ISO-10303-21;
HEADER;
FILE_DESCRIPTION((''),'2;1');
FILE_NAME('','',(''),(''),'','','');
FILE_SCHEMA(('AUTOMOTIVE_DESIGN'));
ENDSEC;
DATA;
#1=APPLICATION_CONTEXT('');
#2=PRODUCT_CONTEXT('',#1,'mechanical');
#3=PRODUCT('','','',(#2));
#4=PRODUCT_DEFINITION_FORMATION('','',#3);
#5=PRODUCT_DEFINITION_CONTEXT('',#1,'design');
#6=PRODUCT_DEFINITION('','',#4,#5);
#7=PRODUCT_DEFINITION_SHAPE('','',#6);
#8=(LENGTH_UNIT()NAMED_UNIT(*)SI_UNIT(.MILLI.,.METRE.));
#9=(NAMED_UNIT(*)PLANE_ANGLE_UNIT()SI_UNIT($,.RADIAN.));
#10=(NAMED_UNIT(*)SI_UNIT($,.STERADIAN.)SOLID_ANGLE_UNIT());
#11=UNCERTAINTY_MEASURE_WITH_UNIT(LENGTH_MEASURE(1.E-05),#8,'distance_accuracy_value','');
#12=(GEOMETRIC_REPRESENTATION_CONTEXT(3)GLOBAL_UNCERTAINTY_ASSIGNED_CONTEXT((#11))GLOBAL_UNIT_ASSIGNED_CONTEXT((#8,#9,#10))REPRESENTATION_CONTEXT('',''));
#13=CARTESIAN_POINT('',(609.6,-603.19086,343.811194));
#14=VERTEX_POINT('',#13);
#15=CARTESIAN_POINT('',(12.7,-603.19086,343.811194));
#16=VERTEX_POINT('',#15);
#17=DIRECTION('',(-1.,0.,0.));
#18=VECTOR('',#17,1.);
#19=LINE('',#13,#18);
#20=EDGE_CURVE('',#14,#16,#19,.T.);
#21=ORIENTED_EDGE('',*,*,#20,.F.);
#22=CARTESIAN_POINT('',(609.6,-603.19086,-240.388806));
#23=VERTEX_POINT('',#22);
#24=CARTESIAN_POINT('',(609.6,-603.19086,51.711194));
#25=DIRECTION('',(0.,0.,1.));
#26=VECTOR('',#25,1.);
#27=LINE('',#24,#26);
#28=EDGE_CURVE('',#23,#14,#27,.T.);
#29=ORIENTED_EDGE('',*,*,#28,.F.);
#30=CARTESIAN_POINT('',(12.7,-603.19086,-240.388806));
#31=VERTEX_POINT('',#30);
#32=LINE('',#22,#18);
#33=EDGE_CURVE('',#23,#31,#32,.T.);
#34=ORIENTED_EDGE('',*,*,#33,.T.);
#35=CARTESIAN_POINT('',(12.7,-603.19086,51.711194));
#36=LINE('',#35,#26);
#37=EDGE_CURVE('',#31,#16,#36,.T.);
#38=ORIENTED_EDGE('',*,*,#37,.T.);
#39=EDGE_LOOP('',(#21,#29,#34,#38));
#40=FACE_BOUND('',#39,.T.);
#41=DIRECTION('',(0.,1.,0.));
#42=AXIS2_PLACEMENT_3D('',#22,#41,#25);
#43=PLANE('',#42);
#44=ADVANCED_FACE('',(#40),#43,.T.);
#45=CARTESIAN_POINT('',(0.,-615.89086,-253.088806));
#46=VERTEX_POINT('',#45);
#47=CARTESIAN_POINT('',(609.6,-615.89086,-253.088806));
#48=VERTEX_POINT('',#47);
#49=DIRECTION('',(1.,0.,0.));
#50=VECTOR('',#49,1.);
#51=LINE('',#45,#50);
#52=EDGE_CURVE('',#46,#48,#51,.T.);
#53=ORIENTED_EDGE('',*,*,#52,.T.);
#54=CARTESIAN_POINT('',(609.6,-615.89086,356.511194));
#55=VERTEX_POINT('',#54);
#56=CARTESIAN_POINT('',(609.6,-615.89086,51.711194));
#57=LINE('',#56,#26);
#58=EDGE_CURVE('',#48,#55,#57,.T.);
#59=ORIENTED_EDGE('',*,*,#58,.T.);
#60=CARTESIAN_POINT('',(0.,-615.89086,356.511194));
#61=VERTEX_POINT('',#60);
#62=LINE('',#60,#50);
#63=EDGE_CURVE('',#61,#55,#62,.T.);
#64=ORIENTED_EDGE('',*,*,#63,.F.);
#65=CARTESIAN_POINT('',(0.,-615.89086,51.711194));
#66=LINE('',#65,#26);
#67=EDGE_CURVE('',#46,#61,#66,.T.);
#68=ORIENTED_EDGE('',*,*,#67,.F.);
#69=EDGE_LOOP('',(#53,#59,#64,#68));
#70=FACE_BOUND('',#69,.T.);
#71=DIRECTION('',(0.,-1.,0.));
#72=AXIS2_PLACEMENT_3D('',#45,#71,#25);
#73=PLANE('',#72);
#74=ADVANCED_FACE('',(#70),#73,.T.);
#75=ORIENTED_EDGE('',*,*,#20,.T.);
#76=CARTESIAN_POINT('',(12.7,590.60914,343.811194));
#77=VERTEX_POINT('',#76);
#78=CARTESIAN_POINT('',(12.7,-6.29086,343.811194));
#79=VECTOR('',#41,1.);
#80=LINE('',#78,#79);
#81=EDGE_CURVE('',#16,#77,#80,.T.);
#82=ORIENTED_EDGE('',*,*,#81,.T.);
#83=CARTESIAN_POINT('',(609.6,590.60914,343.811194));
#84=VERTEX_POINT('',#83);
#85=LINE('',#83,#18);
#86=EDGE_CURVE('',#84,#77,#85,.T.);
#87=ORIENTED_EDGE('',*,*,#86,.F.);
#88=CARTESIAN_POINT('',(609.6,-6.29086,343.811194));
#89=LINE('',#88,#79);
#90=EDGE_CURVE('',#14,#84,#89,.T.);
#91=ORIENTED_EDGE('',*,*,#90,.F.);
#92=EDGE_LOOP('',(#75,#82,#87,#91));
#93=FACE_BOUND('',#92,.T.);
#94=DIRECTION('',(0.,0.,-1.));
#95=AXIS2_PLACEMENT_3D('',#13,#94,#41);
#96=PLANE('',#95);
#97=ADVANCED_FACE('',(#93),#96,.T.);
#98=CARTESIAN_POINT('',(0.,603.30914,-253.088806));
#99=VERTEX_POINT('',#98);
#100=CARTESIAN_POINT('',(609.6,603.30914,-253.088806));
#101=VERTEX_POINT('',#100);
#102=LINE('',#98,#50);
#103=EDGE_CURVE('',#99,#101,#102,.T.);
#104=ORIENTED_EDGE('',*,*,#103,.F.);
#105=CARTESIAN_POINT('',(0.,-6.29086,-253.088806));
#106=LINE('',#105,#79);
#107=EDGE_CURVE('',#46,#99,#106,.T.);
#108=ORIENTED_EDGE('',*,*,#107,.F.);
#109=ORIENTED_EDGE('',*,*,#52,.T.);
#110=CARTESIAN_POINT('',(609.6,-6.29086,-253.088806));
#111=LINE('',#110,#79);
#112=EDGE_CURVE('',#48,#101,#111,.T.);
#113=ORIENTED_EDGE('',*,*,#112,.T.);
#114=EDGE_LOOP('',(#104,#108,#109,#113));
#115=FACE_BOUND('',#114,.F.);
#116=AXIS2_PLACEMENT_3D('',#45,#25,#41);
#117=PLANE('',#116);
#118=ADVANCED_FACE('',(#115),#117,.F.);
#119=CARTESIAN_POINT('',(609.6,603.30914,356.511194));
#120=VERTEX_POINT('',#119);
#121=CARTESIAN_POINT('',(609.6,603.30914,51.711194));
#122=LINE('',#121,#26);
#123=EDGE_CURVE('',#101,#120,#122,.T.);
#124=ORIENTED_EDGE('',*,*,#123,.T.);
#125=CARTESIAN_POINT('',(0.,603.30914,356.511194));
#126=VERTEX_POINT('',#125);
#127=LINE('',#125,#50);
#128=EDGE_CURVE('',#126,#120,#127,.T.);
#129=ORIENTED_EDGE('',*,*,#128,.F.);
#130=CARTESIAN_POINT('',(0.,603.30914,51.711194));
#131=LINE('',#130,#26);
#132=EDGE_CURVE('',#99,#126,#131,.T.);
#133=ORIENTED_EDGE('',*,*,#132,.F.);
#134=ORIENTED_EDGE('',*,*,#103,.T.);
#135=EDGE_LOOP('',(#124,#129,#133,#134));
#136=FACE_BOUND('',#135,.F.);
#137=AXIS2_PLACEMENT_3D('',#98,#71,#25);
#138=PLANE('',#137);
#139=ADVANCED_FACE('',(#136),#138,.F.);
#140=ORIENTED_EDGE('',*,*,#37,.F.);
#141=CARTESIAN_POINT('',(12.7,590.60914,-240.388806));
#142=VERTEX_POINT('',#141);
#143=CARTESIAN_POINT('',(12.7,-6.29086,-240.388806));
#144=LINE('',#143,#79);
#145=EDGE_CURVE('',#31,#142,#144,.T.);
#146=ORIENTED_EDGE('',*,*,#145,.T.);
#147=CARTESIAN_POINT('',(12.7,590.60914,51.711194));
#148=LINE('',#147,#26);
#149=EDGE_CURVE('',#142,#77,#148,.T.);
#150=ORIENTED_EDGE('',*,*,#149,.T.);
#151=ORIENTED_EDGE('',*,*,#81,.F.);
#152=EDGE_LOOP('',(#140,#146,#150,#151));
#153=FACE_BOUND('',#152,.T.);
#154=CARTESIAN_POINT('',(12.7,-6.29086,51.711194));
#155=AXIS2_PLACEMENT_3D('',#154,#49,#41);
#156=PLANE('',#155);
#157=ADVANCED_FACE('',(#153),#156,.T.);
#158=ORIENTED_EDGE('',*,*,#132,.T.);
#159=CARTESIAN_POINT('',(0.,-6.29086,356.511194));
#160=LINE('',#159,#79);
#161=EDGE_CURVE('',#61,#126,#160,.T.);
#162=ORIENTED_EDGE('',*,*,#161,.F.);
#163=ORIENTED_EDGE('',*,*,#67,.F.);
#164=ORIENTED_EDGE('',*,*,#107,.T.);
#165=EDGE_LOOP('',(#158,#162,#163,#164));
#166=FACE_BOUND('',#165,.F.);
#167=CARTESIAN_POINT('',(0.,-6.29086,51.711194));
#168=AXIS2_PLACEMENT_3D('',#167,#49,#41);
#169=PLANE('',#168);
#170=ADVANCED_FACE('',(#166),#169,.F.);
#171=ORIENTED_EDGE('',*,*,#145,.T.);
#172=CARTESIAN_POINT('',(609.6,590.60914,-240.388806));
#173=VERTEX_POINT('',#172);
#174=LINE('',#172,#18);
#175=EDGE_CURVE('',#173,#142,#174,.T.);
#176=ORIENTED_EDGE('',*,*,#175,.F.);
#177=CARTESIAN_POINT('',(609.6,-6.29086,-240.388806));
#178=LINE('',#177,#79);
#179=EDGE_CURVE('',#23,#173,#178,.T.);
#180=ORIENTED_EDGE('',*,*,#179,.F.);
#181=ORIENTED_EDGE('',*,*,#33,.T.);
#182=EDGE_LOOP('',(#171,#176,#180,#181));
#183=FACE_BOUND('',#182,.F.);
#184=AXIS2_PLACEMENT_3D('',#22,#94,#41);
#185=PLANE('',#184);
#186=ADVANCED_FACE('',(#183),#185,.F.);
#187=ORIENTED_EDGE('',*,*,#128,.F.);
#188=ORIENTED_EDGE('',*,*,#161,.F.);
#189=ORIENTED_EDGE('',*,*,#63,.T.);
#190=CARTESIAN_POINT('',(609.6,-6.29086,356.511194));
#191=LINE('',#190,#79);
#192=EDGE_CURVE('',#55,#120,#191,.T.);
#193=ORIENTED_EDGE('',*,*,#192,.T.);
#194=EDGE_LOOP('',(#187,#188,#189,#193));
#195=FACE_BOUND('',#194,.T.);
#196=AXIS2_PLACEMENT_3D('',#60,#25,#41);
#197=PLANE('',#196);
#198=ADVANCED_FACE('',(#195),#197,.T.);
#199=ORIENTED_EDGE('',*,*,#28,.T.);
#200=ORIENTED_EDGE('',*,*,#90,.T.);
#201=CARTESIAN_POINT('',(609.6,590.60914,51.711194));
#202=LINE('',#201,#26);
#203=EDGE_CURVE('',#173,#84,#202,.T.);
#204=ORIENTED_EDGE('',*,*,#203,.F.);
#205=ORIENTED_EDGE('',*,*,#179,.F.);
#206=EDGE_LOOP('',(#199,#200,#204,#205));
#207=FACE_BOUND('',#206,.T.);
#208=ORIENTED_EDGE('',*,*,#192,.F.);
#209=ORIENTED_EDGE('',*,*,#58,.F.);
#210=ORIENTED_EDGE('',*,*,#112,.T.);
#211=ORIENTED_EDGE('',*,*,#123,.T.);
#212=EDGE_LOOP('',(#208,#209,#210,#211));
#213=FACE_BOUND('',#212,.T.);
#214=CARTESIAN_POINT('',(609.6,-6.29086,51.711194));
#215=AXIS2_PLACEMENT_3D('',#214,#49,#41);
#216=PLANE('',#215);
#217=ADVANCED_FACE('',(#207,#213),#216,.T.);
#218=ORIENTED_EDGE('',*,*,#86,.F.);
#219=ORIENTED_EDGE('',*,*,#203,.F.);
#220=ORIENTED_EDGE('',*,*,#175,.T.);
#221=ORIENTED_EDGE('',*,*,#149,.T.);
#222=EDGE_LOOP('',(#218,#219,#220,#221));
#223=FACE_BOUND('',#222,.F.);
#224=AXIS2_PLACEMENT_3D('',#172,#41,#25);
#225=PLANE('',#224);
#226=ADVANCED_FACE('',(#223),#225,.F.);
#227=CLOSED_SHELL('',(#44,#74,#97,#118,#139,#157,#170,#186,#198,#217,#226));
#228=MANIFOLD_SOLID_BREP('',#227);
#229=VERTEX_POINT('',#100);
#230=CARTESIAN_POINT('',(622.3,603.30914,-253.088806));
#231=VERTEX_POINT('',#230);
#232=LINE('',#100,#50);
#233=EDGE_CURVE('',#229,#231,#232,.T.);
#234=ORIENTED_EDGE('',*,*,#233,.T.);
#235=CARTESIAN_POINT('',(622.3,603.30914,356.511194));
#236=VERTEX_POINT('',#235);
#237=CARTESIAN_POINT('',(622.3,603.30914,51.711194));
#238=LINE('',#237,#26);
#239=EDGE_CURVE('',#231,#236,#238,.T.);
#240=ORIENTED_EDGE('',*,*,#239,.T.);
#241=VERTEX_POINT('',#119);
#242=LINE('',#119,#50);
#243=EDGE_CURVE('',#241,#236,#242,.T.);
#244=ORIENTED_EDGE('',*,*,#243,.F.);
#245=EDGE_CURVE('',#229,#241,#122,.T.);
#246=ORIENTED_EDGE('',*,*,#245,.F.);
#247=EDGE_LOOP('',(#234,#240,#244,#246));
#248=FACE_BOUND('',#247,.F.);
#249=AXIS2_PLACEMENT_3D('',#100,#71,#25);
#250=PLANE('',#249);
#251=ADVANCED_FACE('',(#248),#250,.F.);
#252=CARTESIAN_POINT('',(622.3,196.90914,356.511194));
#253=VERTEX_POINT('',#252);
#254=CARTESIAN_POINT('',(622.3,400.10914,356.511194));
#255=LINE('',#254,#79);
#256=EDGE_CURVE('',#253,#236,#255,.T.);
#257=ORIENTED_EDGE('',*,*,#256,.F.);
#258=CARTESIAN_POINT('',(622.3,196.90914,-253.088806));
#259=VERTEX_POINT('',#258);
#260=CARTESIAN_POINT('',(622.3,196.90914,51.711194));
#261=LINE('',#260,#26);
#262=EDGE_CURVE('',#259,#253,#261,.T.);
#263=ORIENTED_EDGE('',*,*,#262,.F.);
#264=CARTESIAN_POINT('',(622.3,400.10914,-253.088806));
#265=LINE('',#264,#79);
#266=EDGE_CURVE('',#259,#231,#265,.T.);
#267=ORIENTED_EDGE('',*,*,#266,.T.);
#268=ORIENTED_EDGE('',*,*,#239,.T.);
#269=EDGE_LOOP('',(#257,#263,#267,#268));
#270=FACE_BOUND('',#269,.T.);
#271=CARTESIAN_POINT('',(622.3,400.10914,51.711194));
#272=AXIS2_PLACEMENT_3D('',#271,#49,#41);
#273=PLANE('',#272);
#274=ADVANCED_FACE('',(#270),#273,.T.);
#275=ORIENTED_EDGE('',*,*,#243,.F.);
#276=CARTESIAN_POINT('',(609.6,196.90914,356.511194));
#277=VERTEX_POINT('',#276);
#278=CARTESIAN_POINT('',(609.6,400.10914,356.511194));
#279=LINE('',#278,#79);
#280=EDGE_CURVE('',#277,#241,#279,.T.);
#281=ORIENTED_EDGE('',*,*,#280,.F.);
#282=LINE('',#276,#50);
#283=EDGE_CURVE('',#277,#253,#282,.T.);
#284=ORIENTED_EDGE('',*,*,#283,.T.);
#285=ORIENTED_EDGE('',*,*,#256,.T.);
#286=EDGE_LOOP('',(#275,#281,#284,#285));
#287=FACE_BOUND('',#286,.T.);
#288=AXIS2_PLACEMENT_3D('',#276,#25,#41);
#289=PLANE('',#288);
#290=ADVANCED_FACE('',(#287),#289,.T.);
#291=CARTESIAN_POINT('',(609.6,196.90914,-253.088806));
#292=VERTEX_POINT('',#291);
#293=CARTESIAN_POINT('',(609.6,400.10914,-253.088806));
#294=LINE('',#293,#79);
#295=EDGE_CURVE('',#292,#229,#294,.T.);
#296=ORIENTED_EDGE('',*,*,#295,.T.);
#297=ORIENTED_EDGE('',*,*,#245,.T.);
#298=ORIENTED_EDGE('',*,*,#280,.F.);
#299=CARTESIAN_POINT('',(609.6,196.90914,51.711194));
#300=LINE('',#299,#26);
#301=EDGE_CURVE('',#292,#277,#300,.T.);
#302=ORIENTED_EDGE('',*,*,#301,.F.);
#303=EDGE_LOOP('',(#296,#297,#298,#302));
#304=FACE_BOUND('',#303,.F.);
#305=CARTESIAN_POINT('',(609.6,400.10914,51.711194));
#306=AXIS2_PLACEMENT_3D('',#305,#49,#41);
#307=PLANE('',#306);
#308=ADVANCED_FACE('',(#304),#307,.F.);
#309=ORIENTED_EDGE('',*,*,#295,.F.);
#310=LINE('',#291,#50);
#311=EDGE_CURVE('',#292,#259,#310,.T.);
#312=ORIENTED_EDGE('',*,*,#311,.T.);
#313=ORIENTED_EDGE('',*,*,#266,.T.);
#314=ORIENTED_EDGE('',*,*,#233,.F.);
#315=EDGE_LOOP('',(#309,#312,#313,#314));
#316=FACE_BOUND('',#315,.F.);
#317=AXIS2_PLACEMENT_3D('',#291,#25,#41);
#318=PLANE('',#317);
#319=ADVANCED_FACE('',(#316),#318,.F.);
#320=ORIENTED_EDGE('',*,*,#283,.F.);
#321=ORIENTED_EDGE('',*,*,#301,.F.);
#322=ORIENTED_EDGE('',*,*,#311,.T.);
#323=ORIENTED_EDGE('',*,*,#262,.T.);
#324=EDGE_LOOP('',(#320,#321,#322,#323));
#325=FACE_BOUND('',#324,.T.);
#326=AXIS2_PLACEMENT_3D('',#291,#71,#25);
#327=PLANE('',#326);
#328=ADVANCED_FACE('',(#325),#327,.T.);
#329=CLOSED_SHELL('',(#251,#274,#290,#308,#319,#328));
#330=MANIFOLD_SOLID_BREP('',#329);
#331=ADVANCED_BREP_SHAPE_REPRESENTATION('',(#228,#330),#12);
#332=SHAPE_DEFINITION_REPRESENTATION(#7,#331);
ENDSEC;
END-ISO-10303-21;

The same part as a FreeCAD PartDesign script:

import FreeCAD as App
import Part
import Sketcher

V = App.Vector
Q = App.Units.Quantity


def add_polygon(sketch, points):
    """Adds a closed chain of lines whose ends are joined by coincident constraints."""
    first, n = sketch.GeometryCount, len(points)
    for a, b in zip(points, points[1:] + points[:1]):
        sketch.addGeometry(Part.LineSegment(App.Vector(*a, 0), App.Vector(*b, 0)), False)
    for i in range(n):
        sketch.addConstraint(Sketcher.Constraint("Coincident", first + i, 2, first + (i + 1) % n, 1))

doc = App.newDocument("Part")
params = doc.addObject("Spreadsheet::Sheet", "Params")
for row, (alias, value) in enumerate([
    ("sketch1_width", "48 in"),
    ("sketch1_height", "24 in"),
    ("pad1_length", "24 in"),
    ("sketch2_width", "47 in"),
    ("sketch2_height", "23 in"),
    ("pocket1_length", "23.5 in"),
    ("sketch3_width", "16 in"),
    ("sketch3_height", "24 in"),
    ("pad2_length", "0.5 in"),
], start=1):
    params.set(f"A{row}", alias)
    params.set(f"B{row}", "=" + value)
    params.setAlias(f"B{row}", alias)

body = doc.addObject("PartDesign::Body", "Body")

# Sketch on YZ plane
sketch1 = doc.addObject("Sketcher::SketchObject", "Sketch")
body.addObject(sketch1)
sketch1.AttachmentSupport = (doc.YZ_Plane, [""])
sketch1.MapMode = "FlatFace"
add_polygon(sketch1, [(-616, 357), (-616, -253), (603, -253), (603, 357)])  # lines 0-3
sketch1.addConstraint(Sketcher.Constraint("Vertical", 0))
sketch1.addConstraint(Sketcher.Constraint("Horizontal", 1))
sketch1.addConstraint(Sketcher.Constraint("Vertical", 2))
sketch1.addConstraint(Sketcher.Constraint("Horizontal", 3))
sketch1.addConstraint(Sketcher.Constraint("DistanceX", 1, 1, 1, 2, Q("48 in")))
sketch1.addConstraint(Sketcher.Constraint("DistanceY", 0, 2, 0, 1, Q("24 in")))
sketch1.addConstraint(Sketcher.Constraint("DistanceX", 0, 2, -1, 1, Q("615.89086 mm")))
sketch1.addConstraint(Sketcher.Constraint("DistanceY", 0, 2, -1, 1, Q("253.088806 mm")))
sketch1.setExpression("Constraints[8]", "Params.sketch1_width")
sketch1.setExpression("Constraints[9]", "Params.sketch1_height")
pad1 = doc.addObject("PartDesign::Pad", "Pad")
body.addObject(pad1)
pad1.Profile = sketch1
pad1.setExpression("Length", "Params.pad1_length")

# Sketch on YZ plane
sketch2 = doc.addObject("Sketcher::SketchObject", "Sketch001")
body.addObject(sketch2)
sketch2.AttachmentSupport = (doc.YZ_Plane, [""])
sketch2.MapMode = "FlatFace"
sketch2.AttachmentOffset = App.Placement(V(0, 0, 24 * 25.4), App.Rotation())
add_polygon(sketch2, [(-603, 344), (-603, -240), (591, -240), (591, 344)])  # lines 0-3
sketch2.addConstraint(Sketcher.Constraint("Vertical", 0))
sketch2.addConstraint(Sketcher.Constraint("Horizontal", 1))
sketch2.addConstraint(Sketcher.Constraint("Vertical", 2))
sketch2.addConstraint(Sketcher.Constraint("Horizontal", 3))
sketch2.addConstraint(Sketcher.Constraint("DistanceX", 1, 1, 1, 2, Q("47 in")))
sketch2.addConstraint(Sketcher.Constraint("DistanceY", 0, 2, 0, 1, Q("23 in")))
sketch2.addConstraint(Sketcher.Constraint("DistanceX", 0, 2, -1, 1, Q("603.19086 mm")))
sketch2.addConstraint(Sketcher.Constraint("DistanceY", 0, 2, -1, 1, Q("240.388806 mm")))
sketch2.setExpression("Constraints[8]", "Params.sketch2_width")
sketch2.setExpression("Constraints[9]", "Params.sketch2_height")
pocket1 = doc.addObject("PartDesign::Pocket", "Pocket")
body.addObject(pocket1)
pocket1.Profile = sketch2
pocket1.setExpression("Length", "Params.pocket1_length")
body2 = doc.addObject("PartDesign::Body", "Body001")

# Sketch on YZ plane
sketch3 = doc.addObject("Sketcher::SketchObject", "Sketch002")
body2.addObject(sketch3)
sketch3.AttachmentSupport = (doc.getObject("YZ_Plane001"), [""])
sketch3.MapMode = "FlatFace"
sketch3.AttachmentOffset = App.Placement(V(0, 0, 24 * 25.4), App.Rotation())
add_polygon(sketch3, [(197, 357), (197, -253), (603, -253), (603, 357)])  # lines 0-3
sketch3.addConstraint(Sketcher.Constraint("Vertical", 0))
sketch3.addConstraint(Sketcher.Constraint("Horizontal", 1))
sketch3.addConstraint(Sketcher.Constraint("Vertical", 2))
sketch3.addConstraint(Sketcher.Constraint("Horizontal", 3))
sketch3.addConstraint(Sketcher.Constraint("DistanceX", 1, 1, 1, 2, Q("16 in")))
sketch3.addConstraint(Sketcher.Constraint("DistanceY", 0, 2, 0, 1, Q("24 in")))
sketch3.addConstraint(Sketcher.Constraint("DistanceX", -1, 1, 0, 2, Q("196.90914 mm")))
sketch3.addConstraint(Sketcher.Constraint("DistanceY", 0, 2, -1, 1, Q("253.088806 mm")))
sketch3.setExpression("Constraints[8]", "Params.sketch3_width")
sketch3.setExpression("Constraints[9]", "Params.sketch3_height")
pad2 = doc.addObject("PartDesign::Pad", "Pad001")
body2.addObject(pad2)
pad2.Profile = sketch3
pad2.setExpression("Length", "Params.pad2_length")

doc.recompute()
